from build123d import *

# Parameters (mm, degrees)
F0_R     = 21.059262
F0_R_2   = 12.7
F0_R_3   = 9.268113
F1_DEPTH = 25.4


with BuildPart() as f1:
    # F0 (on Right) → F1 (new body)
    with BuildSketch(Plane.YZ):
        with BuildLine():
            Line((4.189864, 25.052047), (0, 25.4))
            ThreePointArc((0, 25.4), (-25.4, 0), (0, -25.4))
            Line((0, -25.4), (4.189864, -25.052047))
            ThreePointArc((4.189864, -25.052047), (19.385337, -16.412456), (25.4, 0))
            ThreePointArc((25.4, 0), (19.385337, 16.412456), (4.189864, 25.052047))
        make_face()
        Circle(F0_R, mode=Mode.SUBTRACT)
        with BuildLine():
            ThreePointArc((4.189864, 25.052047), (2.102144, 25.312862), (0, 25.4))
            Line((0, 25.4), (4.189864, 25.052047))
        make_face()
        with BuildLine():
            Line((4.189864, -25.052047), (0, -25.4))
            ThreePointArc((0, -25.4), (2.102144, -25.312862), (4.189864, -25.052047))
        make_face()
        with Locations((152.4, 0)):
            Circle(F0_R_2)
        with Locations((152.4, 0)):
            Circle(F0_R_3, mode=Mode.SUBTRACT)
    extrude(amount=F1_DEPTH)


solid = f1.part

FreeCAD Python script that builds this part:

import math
import FreeCAD as App
import Part
import Sketcher

V = App.Vector
Q = App.Units.Quantity

doc = App.newDocument("Part")
body = doc.addObject("PartDesign::Body", "Body")
body.AllowCompound = True

sketch1 = doc.addObject("Sketcher::SketchObject", "Sketch")
body.addObject(sketch1)
sketch1.AttachmentSupport = (doc.YZ_Plane, [""])
sketch1.MapMode = "FlatFace"
sketch1.addGeometry([
    Part.ArcOfCircle(Part.Circle(V(-0.000001, 0, 0), V(0, 0, 1), 25.400001), math.radians(0), math.radians(80.505362)),
    Part.ArcOfCircle(Part.Circle(V(-0.000006, -0.000101, 0), V(0, 0, 1), 25.400101), math.radians(80.505388), math.radians(89.999986)),
    Part.ArcOfCircle(Part.Circle(V(0, 0, 0), V(0, 0, 1), 25.4), math.radians(90), math.radians(270)),
    Part.ArcOfCircle(Part.Circle(V(-0.000006, 0.000101, 0), V(0, 0, 1), 25.400101), math.radians(-89.999986), math.radians(-80.505388)),
    Part.ArcOfCircle(Part.Circle(V(-0.000001, 0, 0), V(0, 0, 1), 25.400001), math.radians(-80.505362), math.radians(0)),
    Part.Circle(V(0, 0, 0), V(0, 0, 1), 21.059262),
    Part.Circle(V(152.4, 0, 0), V(0, 0, 1), 12.7),
    Part.Circle(V(152.4, 0, 0), V(0, 0, 1), 9.268113),
], False)
sketch1.addConstraint([
    Sketcher.Constraint("Coincident", 0, 2, 1, 1),
    Sketcher.Constraint("Coincident", 1, 2, 2, 1),
    Sketcher.Constraint("Coincident", 2, 2, 3, 1),
    Sketcher.Constraint("Coincident", 3, 2, 4, 1),
    Sketcher.Constraint("Coincident", 4, 2, 0, 1),
    Sketcher.Constraint("Coincident", 0, 3, -1, 1),
    Sketcher.Constraint("Coincident", 2, 3, -1, 1),
    Sketcher.Constraint("Coincident", 4, 3, -1, 1),
    Sketcher.Constraint("Coincident", 5, 3, -1, 1),
    Sketcher.Constraint("Coincident", 7, 3, 6, 3),
    Sketcher.Constraint("PointOnObject", 6, 3, -1),
    Sketcher.Constraint("PointOnObject", 1, 2, -2),
    Sketcher.Constraint("PointOnObject", 2, 2, -2),
    Sketcher.Constraint("PointOnObject", 4, 2, -1),
    Sketcher.Constraint("Diameter", 6, Q("1 in")),
    Sketcher.Constraint("Radius", 0, Q("1 in")),
    Sketcher.Constraint("Radius", 2, Q("1 in")),
    Sketcher.Constraint("DistanceX", -1, 1, 6, 3, Q("6 in")),
    Sketcher.Constraint("Radius", 1, Q("25.400101 mm")),
    Sketcher.Constraint("Radius", 3, Q("25.400101 mm")),
    Sketcher.Constraint("Diameter", 5, Q("42.118524 mm")),
    Sketcher.Constraint("Diameter", 7, Q("18.536226 mm")),
    Sketcher.Constraint("DistanceX", 3, 3, 0, 2, Q("4.18987 mm")),
    Sketcher.Constraint("DistanceX", 1, 3, 3, 2, Q("4.18987 mm")),
])
pad1 = doc.addObject("PartDesign::Pad", "Pad")
body.addObject(pad1)
pad1.Profile = sketch1
pad1.Length = Q("1 in")

doc.recompute()
